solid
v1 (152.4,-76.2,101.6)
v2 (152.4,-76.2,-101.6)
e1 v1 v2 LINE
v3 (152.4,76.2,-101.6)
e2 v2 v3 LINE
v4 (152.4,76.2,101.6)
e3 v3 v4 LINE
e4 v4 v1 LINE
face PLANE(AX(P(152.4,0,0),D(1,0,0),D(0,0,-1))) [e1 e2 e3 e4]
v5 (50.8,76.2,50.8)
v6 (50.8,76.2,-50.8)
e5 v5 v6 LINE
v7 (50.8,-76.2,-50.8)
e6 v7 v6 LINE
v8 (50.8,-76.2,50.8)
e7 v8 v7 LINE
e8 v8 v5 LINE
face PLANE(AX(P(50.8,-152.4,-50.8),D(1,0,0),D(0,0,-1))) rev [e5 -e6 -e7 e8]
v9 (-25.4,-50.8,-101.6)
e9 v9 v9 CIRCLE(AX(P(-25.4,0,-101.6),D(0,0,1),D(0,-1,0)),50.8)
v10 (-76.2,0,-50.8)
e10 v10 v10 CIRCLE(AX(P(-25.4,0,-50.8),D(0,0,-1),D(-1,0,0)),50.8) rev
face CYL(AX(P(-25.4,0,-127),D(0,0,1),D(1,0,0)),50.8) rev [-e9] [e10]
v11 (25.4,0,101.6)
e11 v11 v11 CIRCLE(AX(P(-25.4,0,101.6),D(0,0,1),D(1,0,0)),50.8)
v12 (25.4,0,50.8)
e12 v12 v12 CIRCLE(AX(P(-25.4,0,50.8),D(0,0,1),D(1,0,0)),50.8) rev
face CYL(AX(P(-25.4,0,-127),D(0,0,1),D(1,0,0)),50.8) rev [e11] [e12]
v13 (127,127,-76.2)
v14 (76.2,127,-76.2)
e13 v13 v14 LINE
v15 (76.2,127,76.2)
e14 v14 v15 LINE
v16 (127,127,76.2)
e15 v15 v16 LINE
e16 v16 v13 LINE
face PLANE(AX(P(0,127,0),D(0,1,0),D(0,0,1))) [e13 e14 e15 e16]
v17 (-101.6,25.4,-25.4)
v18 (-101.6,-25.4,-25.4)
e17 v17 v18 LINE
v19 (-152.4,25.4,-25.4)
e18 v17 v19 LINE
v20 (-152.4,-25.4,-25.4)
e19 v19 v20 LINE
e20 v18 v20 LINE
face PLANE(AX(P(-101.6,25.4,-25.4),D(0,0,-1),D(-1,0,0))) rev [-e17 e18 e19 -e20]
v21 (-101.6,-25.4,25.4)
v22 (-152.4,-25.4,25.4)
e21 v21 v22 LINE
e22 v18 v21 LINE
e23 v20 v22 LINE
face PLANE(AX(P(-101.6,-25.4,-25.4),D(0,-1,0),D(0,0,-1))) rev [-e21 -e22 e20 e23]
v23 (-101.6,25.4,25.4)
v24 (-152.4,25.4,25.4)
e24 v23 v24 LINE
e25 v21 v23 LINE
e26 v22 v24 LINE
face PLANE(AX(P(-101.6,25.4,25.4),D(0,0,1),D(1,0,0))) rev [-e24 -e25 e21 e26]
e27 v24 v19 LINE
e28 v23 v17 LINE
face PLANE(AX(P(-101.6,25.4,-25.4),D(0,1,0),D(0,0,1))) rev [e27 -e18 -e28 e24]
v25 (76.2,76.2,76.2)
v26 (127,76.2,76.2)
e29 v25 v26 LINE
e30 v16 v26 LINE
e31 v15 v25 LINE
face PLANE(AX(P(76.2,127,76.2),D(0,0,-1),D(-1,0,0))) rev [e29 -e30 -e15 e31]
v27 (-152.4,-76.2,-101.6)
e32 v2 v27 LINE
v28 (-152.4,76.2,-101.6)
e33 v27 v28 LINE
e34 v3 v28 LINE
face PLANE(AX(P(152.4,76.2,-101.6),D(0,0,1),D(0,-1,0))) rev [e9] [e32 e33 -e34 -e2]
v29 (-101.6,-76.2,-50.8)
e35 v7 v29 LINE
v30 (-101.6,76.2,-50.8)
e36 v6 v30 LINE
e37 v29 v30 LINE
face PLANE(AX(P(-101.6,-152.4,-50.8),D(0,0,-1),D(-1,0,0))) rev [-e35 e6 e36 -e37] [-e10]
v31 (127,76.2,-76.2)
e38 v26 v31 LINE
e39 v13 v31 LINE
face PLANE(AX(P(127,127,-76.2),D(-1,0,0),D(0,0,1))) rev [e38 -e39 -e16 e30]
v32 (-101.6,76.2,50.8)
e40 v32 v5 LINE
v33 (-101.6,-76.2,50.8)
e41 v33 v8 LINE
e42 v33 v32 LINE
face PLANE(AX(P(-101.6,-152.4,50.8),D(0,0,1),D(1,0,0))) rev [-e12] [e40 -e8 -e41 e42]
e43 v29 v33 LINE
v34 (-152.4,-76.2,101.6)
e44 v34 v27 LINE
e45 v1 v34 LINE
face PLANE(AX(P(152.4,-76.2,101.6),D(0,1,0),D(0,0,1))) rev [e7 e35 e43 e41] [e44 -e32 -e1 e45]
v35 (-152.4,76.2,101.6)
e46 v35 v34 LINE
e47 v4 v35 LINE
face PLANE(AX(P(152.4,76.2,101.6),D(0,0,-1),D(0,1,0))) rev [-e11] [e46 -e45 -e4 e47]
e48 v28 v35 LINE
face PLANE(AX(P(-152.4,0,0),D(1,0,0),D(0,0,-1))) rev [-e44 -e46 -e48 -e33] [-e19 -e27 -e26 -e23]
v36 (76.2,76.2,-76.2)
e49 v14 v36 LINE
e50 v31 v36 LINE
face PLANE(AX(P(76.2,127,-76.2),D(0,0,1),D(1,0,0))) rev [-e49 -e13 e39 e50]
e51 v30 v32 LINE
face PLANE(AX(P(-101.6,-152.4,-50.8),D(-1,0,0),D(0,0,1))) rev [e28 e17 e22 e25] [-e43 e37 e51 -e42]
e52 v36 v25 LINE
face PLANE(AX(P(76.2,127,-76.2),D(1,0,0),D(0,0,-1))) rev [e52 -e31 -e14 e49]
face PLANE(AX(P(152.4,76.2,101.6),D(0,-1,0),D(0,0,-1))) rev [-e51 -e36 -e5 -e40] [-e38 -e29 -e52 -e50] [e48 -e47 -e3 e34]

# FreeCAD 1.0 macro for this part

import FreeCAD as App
import Part
import Sketcher

V = App.Vector
Q = App.Units.Quantity

doc = App.newDocument("Part")
body = doc.addObject("PartDesign::Body", "Body")

# Sketch on YZ plane
sketch1 = doc.addObject("Sketcher::SketchObject", "Sketch")
body.addObject(sketch1)
sketch1.AttachmentSupport = (doc.YZ_Plane, [""])
sketch1.MapMode = "FlatFace"
sketch1.addGeometry(Part.LineSegment(V(76, 102, 0), V(-76, 102, 0)), False)
sketch1.addGeometry(Part.LineSegment(V(-76, 102, 0), V(-76, -102, 0)), False)
sketch1.addGeometry(Part.LineSegment(V(-76, -102, 0), V(76, -102, 0)), False)
sketch1.addGeometry(Part.LineSegment(V(76, -102, 0), V(76, 102, 0)), False)
sketch1.addConstraint(Sketcher.Constraint("Coincident", 0, 2, 1, 1))
sketch1.addConstraint(Sketcher.Constraint("Coincident", 1, 2, 2, 1))
sketch1.addConstraint(Sketcher.Constraint("Coincident", 2, 2, 3, 1))
sketch1.addConstraint(Sketcher.Constraint("Coincident", 3, 2, 0, 1))
sketch1.addConstraint(Sketcher.Constraint("Horizontal", 0))
sketch1.addConstraint(Sketcher.Constraint("Vertical", 1))
sketch1.addConstraint(Sketcher.Constraint("Horizontal", 2))
sketch1.addConstraint(Sketcher.Constraint("Vertical", 3))
sketch1.addConstraint(Sketcher.Constraint("Symmetric", 0, 2, 2, 2, -1, 1))
sketch1.addConstraint(Sketcher.Constraint("DistanceX", 0, 2, 0, 1, Q("6 in")))
sketch1.addConstraint(Sketcher.Constraint("DistanceY", 1, 2, 1, 1, Q("8 in")))
pad1 = doc.addObject("PartDesign::Pad", "Pad")
body.addObject(pad1)
pad1.Profile = sketch1
pad1.Length = Q("12 in")
pad1.Midplane = True

# Sketch on XY plane
sketch2 = doc.addObject("Sketcher::SketchObject", "Sketch001")
body.addObject(sketch2)
sketch2.AttachmentSupport = (doc.XY_Plane, [""])
sketch2.MapMode = "FlatFace"
sketch2.AttachmentOffset = App.Placement(V(0, 0, 4 * 25.4), App.Rotation())
sketch2.addGeometry(Part.Circle(V(-25, 0, 0), V(0, 0, 1), 51), False)
sketch2.addConstraint(Sketcher.Constraint("PointOnObject", 0, 3, -1))
sketch2.addConstraint(Sketcher.Constraint("Diameter", 0, Q("4 in")))
sketch2.addConstraint(Sketcher.Constraint("DistanceX", 0, 3, -1, 1, Q("1 in")))
pocket1 = doc.addObject("PartDesign::Pocket", "Pocket")
body.addObject(pocket1)
pocket1.Profile = sketch2
pocket1.Length = Q("9 in")

# Sketch on YZ plane
sketch3 = doc.addObject("Sketcher::SketchObject", "Sketch002")
body.addObject(sketch3)
sketch3.AttachmentSupport = (doc.YZ_Plane, [""])
sketch3.MapMode = "FlatFace"
sketch3.AttachmentOffset = App.Placement(V(0, 0, -6 * 25.4), App.Rotation())
sketch3.addGeometry(Part.LineSegment(V(25, -25, 0), V(-25, -25, 0)), False)
sketch3.addGeometry(Part.LineSegment(V(-25, -25, 0), V(-25, 25, 0)), False)
sketch3.addGeometry(Part.LineSegment(V(-25, 25, 0), V(25, 25, 0)), False)
sketch3.addGeometry(Part.LineSegment(V(25, 25, 0), V(25, -25, 0)), False)
sketch3.addConstraint(Sketcher.Constraint("Coincident", 0, 2, 1, 1))
sketch3.addConstraint(Sketcher.Constraint("Coincident", 1, 2, 2, 1))
sketch3.addConstraint(Sketcher.Constraint("Coincident", 2, 2, 3, 1))
sketch3.addConstraint(Sketcher.Constraint("Coincident", 3, 2, 0, 1))
sketch3.addConstraint(Sketcher.Constraint("Horizontal", 0))
sketch3.addConstraint(Sketcher.Constraint("Vertical", 1))
sketch3.addConstraint(Sketcher.Constraint("Horizontal", 2))
sketch3.addConstraint(Sketcher.Constraint("Vertical", 3))
sketch3.addConstraint(Sketcher.Constraint("Symmetric", 0, 2, 2, 2, -1, 1))
sketch3.addConstraint(Sketcher.Constraint("Equal", 2, 1))
sketch3.addConstraint(Sketcher.Constraint("DistanceX", 0, 2, 0, 1, Q("2 in")))
pocket2 = doc.addObject("PartDesign::Pocket", "Pocket001")
body.addObject(pocket2)
pocket2.Profile = sketch3
pocket2.Length = Q("2 in")
pocket2.Reversed = True

# Sketch on XZ plane
sketch4 = doc.addObject("Sketcher::SketchObject", "Sketch003")
body.addObject(sketch4)
sketch4.AttachmentSupport = (doc.XZ_Plane, [""])
sketch4.MapMode = "FlatFace"
sketch4.AttachmentOffset = App.Placement(V(0, 0, -3 * 25.4), App.Rotation())
sketch4.addGeometry(Part.LineSegment(V(76, -76, 0), V(76, 76, 0)), False)
sketch4.addGeometry(Part.LineSegment(V(76, 76, 0), V(127, 76, 0)), False)
sketch4.addGeometry(Part.LineSegment(V(127, 76, 0), V(127, -76, 0)), False)
sketch4.addGeometry(Part.LineSegment(V(127, -76, 0), V(76, -76, 0)), False)
sketch4.addConstraint(Sketcher.Constraint("Coincident", 0, 2, 1, 1))
sketch4.addConstraint(Sketcher.Constraint("Coincident", 1, 2, 2, 1))
sketch4.addConstraint(Sketcher.Constraint("Coincident", 2, 2, 3, 1))
sketch4.addConstraint(Sketcher.Constraint("Coincident", 3, 2, 0, 1))
sketch4.addConstraint(Sketcher.Constraint("Vertical", 0))
sketch4.addConstraint(Sketcher.Constraint("Horizontal", 1))
sketch4.addConstraint(Sketcher.Constraint("Vertical", 2))
sketch4.addConstraint(Sketcher.Constraint("Horizontal", 3))
sketch4.addConstraint(Sketcher.Constraint("DistanceX", 1, 1, 1, 2, Q("2 in")))
sketch4.addConstraint(Sketcher.Constraint("DistanceY", 0, 1, 0, 2, Q("6 in")))
sketch4.addConstraint(Sketcher.Constraint("DistanceX", -1, 1, 0, 2, Q("3 in")))
sketch4.addConstraint(Sketcher.Constraint("DistanceY", -1, 1, 0, 2, Q("3 in")))
pad2 = doc.addObject("PartDesign::Pad", "Pad001")
body.addObject(pad2)
pad2.Profile = sketch4
pad2.Length = Q("2 in")
pad2.Reversed = True

# Sketch on XZ plane
sketch5 = doc.addObject("Sketcher::SketchObject", "Sketch004")
body.addObject(sketch5)
sketch5.AttachmentSupport = (doc.XZ_Plane, [""])
sketch5.MapMode = "FlatFace"
sketch5.AttachmentOffset = App.Placement(V(0, 0, -3 * 25.4), App.Rotation())
sketch5.addGeometry(Part.LineSegment(V(-102, -51, 0), V(-102, 51, 0)), False)
sketch5.addGeometry(Part.LineSegment(V(-102, 51, 0), V(51, 51, 0)), False)
sketch5.addGeometry(Part.LineSegment(V(51, 51, 0), V(51, -51, 0)), False)
sketch5.addGeometry(Part.LineSegment(V(51, -51, 0), V(-102, -51, 0)), False)
sketch5.addConstraint(Sketcher.Constraint("Coincident", 0, 2, 1, 1))
sketch5.addConstraint(Sketcher.Constraint("Coincident", 1, 2, 2, 1))
sketch5.addConstraint(Sketcher.Constraint("Coincident", 2, 2, 3, 1))
sketch5.addConstraint(Sketcher.Constraint("Coincident", 3, 2, 0, 1))
sketch5.addConstraint(Sketcher.Constraint("Vertical", 0))
sketch5.addConstraint(Sketcher.Constraint("Horizontal", 1))
sketch5.addConstraint(Sketcher.Constraint("Vertical", 2))
sketch5.addConstraint(Sketcher.Constraint("Horizontal", 3))
sketch5.addConstraint(Sketcher.Constraint("DistanceX", 1, 1, 1, 2, Q("6 in")))
sketch5.addConstraint(Sketcher.Constraint("DistanceY", 0, 1, 0, 2, Q("4 in")))
sketch5.addConstraint(Sketcher.Constraint("DistanceX", 0, 2, -1, 1, Q("4 in")))
sketch5.addConstraint(Sketcher.Constraint("DistanceY", -1, 1, 0, 2, Q("2 in")))
pocket3 = doc.addObject("PartDesign::Pocket", "Pocket002")
body.addObject(pocket3)
pocket3.Profile = sketch5
pocket3.Length = Q("9 in")
pocket3.Reversed = True

doc.recompute()
